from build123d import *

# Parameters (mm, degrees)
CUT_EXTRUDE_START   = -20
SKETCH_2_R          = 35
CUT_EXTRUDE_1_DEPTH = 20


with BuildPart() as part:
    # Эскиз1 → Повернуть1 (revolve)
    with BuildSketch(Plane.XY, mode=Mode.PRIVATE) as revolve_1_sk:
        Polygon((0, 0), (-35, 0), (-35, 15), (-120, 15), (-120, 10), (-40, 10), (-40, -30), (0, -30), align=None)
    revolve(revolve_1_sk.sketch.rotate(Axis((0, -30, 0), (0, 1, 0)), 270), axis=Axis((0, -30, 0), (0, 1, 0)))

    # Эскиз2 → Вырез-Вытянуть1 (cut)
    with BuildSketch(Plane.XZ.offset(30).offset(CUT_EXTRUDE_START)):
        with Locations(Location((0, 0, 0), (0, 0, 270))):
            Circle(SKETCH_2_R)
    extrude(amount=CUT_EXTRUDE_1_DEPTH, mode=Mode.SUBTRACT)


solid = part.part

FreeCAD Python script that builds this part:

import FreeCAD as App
import Part
import Sketcher

V = App.Vector
Q = App.Units.Quantity

doc = App.newDocument("Part")
body = doc.addObject("PartDesign::Body", "Body")

sketch1 = body.newObject("Sketcher::SketchObject", "Sketch")
sketch1.AttachmentSupport = (doc.getObject("XY_Plane"), [""])
sketch1.MapMode = "FlatFace"
sketch1.addGeometry([
    Part.LineSegment(V(0, 0, 0), V(-35, 0, 0)),
    Part.LineSegment(V(-35, 0, 0), V(-35, 15, 0)),
    Part.LineSegment(V(-35, 15, 0), V(-120, 15, 0)),
    Part.LineSegment(V(-120, 15, 0), V(-120, 10, 0)),
    Part.LineSegment(V(-120, 10, 0), V(-40, 10, 0)),
    Part.LineSegment(V(-40, 10, 0), V(-40, -30, 0)),
    Part.LineSegment(V(-40, -30, 0), V(0, -30, 0)),
    Part.LineSegment(V(0, -30, 0), V(0, 0, 0)),
], False)
sketch1.addConstraint([
    Sketcher.Constraint("Coincident", 0, 2, 1, 1),
    Sketcher.Constraint("Coincident", 1, 2, 2, 1),
    Sketcher.Constraint("Coincident", 2, 2, 3, 1),
    Sketcher.Constraint("Coincident", 3, 2, 4, 1),
    Sketcher.Constraint("Coincident", 4, 2, 5, 1),
    Sketcher.Constraint("Coincident", 5, 2, 6, 1),
    Sketcher.Constraint("Coincident", 6, 2, 7, 1),
    Sketcher.Constraint("Coincident", 7, 2, 0, 1),
    Sketcher.Constraint("Horizontal", 0),
    Sketcher.Constraint("Vertical", 1),
    Sketcher.Constraint("Horizontal", 2),
    Sketcher.Constraint("Vertical", 3),
    Sketcher.Constraint("Horizontal", 4),
    Sketcher.Constraint("Vertical", 5),
    Sketcher.Constraint("Horizontal", 6),
    Sketcher.Constraint("Vertical", 7),
    Sketcher.Constraint("Coincident", 7, 2, -1, 1),
    Sketcher.Constraint("Equal", 6, 5),
    Sketcher.Constraint("DistanceX", 0, 2, 0, 1, Q("35 mm")),
    Sketcher.Constraint("DistanceX", 2, 2, 2, 1, Q("85 mm")),
    Sketcher.Constraint("DistanceX", 4, 1, 4, 2, Q("80 mm")),
    Sketcher.Constraint("DistanceY", 1, 1, 1, 2, Q("15 mm")),
    Sketcher.Constraint("DistanceY", 3, 2, 3, 1, Q("5 mm")),
])
revolution = body.newObject("PartDesign::Revolution", "Revolution")
revolution.Profile = sketch1
revolution.ReferenceAxis = (sketch1, ["V_Axis"])
revolution.Angle = 360

sketch2 = body.newObject("Sketcher::SketchObject", "Sketch001")
sketch2.AttachmentSupport = (doc.getObject("XZ_Plane"), [""])
sketch2.MapMode = "FlatFace"
sketch2.AttachmentOffset = App.Placement(V(0, 0, 10), App.Rotation())
sketch2.addGeometry(Part.Circle(V(0, 0, 0), V(0, 0, 1), 35), False)
sketch2.addConstraint([
    Sketcher.Constraint("Coincident", 0, 3, -1, 1),
    Sketcher.Constraint("Diameter", 0, Q("70 mm")),
])
pocket1 = body.newObject("PartDesign::Pocket", "Pocket")
pocket1.Profile = sketch2
pocket1.Length = 20
pocket1.Reversed = True

doc.recompute()
